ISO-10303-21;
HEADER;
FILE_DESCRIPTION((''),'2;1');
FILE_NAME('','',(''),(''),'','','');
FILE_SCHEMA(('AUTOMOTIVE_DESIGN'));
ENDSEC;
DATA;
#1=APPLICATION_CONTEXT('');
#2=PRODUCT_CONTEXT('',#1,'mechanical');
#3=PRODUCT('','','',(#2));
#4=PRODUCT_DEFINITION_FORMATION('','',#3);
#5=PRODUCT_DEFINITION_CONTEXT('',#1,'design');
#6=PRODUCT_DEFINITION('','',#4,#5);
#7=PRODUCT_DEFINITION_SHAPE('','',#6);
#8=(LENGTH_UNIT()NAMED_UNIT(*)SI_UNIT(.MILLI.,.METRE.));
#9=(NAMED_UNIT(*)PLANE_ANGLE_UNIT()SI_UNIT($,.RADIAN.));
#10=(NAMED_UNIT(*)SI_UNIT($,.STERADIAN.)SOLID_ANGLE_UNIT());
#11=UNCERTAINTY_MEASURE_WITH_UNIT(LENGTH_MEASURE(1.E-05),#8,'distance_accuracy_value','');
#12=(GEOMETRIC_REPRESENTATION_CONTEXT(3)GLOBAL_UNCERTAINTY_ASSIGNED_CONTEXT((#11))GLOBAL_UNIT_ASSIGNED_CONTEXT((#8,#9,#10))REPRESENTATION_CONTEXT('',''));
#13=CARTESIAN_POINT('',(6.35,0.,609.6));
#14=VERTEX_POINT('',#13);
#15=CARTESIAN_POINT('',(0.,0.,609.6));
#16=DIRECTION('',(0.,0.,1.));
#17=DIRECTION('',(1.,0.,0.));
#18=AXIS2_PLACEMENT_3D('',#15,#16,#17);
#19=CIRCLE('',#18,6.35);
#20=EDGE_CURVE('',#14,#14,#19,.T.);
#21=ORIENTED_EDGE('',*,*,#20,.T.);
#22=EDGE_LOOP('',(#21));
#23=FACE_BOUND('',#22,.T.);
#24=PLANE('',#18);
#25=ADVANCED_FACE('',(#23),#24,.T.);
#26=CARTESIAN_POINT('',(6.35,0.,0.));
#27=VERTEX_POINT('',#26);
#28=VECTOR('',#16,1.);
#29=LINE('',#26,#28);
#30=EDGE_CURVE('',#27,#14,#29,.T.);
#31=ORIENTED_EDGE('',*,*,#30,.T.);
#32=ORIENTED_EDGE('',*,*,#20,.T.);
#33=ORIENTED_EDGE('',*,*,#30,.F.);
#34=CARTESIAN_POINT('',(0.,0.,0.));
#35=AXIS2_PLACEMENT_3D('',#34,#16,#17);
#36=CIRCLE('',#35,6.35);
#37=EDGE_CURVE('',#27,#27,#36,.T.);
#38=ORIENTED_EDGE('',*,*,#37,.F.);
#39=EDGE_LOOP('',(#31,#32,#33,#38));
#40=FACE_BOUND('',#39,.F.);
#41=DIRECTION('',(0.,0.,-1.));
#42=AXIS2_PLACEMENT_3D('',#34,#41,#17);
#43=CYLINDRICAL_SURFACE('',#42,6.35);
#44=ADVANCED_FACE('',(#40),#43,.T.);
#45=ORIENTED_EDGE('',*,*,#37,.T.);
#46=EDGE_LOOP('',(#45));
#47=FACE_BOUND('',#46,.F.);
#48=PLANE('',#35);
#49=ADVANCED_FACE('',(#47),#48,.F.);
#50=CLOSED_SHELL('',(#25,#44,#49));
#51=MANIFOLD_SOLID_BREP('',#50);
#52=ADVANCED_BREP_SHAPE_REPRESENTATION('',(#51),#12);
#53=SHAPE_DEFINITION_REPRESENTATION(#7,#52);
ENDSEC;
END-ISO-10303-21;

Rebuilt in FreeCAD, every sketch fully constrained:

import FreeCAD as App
import Part
import Sketcher

V = App.Vector
Q = App.Units.Quantity

doc = App.newDocument("Part")
body = doc.addObject("PartDesign::Body", "Body")

sketch1 = body.newObject("Sketcher::SketchObject", "Sketch")
sketch1.AttachmentSupport = (doc.getObject("XY_Plane"), [""])
sketch1.MapMode = "FlatFace"
sketch1.addGeometry(Part.Circle(V(0, 0, 0), V(0, 0, 1), 6.35), False)
sketch1.addConstraint(Sketcher.Constraint("Coincident", 0, 3, -1, 1))
sketch1.addConstraint(Sketcher.Constraint("Diameter", 0, Q("0.5 in")))
pad1 = body.newObject("PartDesign::Pad", "Pad")
pad1.Profile = sketch1
pad1.Length = Q("24 in")

doc.recompute()
